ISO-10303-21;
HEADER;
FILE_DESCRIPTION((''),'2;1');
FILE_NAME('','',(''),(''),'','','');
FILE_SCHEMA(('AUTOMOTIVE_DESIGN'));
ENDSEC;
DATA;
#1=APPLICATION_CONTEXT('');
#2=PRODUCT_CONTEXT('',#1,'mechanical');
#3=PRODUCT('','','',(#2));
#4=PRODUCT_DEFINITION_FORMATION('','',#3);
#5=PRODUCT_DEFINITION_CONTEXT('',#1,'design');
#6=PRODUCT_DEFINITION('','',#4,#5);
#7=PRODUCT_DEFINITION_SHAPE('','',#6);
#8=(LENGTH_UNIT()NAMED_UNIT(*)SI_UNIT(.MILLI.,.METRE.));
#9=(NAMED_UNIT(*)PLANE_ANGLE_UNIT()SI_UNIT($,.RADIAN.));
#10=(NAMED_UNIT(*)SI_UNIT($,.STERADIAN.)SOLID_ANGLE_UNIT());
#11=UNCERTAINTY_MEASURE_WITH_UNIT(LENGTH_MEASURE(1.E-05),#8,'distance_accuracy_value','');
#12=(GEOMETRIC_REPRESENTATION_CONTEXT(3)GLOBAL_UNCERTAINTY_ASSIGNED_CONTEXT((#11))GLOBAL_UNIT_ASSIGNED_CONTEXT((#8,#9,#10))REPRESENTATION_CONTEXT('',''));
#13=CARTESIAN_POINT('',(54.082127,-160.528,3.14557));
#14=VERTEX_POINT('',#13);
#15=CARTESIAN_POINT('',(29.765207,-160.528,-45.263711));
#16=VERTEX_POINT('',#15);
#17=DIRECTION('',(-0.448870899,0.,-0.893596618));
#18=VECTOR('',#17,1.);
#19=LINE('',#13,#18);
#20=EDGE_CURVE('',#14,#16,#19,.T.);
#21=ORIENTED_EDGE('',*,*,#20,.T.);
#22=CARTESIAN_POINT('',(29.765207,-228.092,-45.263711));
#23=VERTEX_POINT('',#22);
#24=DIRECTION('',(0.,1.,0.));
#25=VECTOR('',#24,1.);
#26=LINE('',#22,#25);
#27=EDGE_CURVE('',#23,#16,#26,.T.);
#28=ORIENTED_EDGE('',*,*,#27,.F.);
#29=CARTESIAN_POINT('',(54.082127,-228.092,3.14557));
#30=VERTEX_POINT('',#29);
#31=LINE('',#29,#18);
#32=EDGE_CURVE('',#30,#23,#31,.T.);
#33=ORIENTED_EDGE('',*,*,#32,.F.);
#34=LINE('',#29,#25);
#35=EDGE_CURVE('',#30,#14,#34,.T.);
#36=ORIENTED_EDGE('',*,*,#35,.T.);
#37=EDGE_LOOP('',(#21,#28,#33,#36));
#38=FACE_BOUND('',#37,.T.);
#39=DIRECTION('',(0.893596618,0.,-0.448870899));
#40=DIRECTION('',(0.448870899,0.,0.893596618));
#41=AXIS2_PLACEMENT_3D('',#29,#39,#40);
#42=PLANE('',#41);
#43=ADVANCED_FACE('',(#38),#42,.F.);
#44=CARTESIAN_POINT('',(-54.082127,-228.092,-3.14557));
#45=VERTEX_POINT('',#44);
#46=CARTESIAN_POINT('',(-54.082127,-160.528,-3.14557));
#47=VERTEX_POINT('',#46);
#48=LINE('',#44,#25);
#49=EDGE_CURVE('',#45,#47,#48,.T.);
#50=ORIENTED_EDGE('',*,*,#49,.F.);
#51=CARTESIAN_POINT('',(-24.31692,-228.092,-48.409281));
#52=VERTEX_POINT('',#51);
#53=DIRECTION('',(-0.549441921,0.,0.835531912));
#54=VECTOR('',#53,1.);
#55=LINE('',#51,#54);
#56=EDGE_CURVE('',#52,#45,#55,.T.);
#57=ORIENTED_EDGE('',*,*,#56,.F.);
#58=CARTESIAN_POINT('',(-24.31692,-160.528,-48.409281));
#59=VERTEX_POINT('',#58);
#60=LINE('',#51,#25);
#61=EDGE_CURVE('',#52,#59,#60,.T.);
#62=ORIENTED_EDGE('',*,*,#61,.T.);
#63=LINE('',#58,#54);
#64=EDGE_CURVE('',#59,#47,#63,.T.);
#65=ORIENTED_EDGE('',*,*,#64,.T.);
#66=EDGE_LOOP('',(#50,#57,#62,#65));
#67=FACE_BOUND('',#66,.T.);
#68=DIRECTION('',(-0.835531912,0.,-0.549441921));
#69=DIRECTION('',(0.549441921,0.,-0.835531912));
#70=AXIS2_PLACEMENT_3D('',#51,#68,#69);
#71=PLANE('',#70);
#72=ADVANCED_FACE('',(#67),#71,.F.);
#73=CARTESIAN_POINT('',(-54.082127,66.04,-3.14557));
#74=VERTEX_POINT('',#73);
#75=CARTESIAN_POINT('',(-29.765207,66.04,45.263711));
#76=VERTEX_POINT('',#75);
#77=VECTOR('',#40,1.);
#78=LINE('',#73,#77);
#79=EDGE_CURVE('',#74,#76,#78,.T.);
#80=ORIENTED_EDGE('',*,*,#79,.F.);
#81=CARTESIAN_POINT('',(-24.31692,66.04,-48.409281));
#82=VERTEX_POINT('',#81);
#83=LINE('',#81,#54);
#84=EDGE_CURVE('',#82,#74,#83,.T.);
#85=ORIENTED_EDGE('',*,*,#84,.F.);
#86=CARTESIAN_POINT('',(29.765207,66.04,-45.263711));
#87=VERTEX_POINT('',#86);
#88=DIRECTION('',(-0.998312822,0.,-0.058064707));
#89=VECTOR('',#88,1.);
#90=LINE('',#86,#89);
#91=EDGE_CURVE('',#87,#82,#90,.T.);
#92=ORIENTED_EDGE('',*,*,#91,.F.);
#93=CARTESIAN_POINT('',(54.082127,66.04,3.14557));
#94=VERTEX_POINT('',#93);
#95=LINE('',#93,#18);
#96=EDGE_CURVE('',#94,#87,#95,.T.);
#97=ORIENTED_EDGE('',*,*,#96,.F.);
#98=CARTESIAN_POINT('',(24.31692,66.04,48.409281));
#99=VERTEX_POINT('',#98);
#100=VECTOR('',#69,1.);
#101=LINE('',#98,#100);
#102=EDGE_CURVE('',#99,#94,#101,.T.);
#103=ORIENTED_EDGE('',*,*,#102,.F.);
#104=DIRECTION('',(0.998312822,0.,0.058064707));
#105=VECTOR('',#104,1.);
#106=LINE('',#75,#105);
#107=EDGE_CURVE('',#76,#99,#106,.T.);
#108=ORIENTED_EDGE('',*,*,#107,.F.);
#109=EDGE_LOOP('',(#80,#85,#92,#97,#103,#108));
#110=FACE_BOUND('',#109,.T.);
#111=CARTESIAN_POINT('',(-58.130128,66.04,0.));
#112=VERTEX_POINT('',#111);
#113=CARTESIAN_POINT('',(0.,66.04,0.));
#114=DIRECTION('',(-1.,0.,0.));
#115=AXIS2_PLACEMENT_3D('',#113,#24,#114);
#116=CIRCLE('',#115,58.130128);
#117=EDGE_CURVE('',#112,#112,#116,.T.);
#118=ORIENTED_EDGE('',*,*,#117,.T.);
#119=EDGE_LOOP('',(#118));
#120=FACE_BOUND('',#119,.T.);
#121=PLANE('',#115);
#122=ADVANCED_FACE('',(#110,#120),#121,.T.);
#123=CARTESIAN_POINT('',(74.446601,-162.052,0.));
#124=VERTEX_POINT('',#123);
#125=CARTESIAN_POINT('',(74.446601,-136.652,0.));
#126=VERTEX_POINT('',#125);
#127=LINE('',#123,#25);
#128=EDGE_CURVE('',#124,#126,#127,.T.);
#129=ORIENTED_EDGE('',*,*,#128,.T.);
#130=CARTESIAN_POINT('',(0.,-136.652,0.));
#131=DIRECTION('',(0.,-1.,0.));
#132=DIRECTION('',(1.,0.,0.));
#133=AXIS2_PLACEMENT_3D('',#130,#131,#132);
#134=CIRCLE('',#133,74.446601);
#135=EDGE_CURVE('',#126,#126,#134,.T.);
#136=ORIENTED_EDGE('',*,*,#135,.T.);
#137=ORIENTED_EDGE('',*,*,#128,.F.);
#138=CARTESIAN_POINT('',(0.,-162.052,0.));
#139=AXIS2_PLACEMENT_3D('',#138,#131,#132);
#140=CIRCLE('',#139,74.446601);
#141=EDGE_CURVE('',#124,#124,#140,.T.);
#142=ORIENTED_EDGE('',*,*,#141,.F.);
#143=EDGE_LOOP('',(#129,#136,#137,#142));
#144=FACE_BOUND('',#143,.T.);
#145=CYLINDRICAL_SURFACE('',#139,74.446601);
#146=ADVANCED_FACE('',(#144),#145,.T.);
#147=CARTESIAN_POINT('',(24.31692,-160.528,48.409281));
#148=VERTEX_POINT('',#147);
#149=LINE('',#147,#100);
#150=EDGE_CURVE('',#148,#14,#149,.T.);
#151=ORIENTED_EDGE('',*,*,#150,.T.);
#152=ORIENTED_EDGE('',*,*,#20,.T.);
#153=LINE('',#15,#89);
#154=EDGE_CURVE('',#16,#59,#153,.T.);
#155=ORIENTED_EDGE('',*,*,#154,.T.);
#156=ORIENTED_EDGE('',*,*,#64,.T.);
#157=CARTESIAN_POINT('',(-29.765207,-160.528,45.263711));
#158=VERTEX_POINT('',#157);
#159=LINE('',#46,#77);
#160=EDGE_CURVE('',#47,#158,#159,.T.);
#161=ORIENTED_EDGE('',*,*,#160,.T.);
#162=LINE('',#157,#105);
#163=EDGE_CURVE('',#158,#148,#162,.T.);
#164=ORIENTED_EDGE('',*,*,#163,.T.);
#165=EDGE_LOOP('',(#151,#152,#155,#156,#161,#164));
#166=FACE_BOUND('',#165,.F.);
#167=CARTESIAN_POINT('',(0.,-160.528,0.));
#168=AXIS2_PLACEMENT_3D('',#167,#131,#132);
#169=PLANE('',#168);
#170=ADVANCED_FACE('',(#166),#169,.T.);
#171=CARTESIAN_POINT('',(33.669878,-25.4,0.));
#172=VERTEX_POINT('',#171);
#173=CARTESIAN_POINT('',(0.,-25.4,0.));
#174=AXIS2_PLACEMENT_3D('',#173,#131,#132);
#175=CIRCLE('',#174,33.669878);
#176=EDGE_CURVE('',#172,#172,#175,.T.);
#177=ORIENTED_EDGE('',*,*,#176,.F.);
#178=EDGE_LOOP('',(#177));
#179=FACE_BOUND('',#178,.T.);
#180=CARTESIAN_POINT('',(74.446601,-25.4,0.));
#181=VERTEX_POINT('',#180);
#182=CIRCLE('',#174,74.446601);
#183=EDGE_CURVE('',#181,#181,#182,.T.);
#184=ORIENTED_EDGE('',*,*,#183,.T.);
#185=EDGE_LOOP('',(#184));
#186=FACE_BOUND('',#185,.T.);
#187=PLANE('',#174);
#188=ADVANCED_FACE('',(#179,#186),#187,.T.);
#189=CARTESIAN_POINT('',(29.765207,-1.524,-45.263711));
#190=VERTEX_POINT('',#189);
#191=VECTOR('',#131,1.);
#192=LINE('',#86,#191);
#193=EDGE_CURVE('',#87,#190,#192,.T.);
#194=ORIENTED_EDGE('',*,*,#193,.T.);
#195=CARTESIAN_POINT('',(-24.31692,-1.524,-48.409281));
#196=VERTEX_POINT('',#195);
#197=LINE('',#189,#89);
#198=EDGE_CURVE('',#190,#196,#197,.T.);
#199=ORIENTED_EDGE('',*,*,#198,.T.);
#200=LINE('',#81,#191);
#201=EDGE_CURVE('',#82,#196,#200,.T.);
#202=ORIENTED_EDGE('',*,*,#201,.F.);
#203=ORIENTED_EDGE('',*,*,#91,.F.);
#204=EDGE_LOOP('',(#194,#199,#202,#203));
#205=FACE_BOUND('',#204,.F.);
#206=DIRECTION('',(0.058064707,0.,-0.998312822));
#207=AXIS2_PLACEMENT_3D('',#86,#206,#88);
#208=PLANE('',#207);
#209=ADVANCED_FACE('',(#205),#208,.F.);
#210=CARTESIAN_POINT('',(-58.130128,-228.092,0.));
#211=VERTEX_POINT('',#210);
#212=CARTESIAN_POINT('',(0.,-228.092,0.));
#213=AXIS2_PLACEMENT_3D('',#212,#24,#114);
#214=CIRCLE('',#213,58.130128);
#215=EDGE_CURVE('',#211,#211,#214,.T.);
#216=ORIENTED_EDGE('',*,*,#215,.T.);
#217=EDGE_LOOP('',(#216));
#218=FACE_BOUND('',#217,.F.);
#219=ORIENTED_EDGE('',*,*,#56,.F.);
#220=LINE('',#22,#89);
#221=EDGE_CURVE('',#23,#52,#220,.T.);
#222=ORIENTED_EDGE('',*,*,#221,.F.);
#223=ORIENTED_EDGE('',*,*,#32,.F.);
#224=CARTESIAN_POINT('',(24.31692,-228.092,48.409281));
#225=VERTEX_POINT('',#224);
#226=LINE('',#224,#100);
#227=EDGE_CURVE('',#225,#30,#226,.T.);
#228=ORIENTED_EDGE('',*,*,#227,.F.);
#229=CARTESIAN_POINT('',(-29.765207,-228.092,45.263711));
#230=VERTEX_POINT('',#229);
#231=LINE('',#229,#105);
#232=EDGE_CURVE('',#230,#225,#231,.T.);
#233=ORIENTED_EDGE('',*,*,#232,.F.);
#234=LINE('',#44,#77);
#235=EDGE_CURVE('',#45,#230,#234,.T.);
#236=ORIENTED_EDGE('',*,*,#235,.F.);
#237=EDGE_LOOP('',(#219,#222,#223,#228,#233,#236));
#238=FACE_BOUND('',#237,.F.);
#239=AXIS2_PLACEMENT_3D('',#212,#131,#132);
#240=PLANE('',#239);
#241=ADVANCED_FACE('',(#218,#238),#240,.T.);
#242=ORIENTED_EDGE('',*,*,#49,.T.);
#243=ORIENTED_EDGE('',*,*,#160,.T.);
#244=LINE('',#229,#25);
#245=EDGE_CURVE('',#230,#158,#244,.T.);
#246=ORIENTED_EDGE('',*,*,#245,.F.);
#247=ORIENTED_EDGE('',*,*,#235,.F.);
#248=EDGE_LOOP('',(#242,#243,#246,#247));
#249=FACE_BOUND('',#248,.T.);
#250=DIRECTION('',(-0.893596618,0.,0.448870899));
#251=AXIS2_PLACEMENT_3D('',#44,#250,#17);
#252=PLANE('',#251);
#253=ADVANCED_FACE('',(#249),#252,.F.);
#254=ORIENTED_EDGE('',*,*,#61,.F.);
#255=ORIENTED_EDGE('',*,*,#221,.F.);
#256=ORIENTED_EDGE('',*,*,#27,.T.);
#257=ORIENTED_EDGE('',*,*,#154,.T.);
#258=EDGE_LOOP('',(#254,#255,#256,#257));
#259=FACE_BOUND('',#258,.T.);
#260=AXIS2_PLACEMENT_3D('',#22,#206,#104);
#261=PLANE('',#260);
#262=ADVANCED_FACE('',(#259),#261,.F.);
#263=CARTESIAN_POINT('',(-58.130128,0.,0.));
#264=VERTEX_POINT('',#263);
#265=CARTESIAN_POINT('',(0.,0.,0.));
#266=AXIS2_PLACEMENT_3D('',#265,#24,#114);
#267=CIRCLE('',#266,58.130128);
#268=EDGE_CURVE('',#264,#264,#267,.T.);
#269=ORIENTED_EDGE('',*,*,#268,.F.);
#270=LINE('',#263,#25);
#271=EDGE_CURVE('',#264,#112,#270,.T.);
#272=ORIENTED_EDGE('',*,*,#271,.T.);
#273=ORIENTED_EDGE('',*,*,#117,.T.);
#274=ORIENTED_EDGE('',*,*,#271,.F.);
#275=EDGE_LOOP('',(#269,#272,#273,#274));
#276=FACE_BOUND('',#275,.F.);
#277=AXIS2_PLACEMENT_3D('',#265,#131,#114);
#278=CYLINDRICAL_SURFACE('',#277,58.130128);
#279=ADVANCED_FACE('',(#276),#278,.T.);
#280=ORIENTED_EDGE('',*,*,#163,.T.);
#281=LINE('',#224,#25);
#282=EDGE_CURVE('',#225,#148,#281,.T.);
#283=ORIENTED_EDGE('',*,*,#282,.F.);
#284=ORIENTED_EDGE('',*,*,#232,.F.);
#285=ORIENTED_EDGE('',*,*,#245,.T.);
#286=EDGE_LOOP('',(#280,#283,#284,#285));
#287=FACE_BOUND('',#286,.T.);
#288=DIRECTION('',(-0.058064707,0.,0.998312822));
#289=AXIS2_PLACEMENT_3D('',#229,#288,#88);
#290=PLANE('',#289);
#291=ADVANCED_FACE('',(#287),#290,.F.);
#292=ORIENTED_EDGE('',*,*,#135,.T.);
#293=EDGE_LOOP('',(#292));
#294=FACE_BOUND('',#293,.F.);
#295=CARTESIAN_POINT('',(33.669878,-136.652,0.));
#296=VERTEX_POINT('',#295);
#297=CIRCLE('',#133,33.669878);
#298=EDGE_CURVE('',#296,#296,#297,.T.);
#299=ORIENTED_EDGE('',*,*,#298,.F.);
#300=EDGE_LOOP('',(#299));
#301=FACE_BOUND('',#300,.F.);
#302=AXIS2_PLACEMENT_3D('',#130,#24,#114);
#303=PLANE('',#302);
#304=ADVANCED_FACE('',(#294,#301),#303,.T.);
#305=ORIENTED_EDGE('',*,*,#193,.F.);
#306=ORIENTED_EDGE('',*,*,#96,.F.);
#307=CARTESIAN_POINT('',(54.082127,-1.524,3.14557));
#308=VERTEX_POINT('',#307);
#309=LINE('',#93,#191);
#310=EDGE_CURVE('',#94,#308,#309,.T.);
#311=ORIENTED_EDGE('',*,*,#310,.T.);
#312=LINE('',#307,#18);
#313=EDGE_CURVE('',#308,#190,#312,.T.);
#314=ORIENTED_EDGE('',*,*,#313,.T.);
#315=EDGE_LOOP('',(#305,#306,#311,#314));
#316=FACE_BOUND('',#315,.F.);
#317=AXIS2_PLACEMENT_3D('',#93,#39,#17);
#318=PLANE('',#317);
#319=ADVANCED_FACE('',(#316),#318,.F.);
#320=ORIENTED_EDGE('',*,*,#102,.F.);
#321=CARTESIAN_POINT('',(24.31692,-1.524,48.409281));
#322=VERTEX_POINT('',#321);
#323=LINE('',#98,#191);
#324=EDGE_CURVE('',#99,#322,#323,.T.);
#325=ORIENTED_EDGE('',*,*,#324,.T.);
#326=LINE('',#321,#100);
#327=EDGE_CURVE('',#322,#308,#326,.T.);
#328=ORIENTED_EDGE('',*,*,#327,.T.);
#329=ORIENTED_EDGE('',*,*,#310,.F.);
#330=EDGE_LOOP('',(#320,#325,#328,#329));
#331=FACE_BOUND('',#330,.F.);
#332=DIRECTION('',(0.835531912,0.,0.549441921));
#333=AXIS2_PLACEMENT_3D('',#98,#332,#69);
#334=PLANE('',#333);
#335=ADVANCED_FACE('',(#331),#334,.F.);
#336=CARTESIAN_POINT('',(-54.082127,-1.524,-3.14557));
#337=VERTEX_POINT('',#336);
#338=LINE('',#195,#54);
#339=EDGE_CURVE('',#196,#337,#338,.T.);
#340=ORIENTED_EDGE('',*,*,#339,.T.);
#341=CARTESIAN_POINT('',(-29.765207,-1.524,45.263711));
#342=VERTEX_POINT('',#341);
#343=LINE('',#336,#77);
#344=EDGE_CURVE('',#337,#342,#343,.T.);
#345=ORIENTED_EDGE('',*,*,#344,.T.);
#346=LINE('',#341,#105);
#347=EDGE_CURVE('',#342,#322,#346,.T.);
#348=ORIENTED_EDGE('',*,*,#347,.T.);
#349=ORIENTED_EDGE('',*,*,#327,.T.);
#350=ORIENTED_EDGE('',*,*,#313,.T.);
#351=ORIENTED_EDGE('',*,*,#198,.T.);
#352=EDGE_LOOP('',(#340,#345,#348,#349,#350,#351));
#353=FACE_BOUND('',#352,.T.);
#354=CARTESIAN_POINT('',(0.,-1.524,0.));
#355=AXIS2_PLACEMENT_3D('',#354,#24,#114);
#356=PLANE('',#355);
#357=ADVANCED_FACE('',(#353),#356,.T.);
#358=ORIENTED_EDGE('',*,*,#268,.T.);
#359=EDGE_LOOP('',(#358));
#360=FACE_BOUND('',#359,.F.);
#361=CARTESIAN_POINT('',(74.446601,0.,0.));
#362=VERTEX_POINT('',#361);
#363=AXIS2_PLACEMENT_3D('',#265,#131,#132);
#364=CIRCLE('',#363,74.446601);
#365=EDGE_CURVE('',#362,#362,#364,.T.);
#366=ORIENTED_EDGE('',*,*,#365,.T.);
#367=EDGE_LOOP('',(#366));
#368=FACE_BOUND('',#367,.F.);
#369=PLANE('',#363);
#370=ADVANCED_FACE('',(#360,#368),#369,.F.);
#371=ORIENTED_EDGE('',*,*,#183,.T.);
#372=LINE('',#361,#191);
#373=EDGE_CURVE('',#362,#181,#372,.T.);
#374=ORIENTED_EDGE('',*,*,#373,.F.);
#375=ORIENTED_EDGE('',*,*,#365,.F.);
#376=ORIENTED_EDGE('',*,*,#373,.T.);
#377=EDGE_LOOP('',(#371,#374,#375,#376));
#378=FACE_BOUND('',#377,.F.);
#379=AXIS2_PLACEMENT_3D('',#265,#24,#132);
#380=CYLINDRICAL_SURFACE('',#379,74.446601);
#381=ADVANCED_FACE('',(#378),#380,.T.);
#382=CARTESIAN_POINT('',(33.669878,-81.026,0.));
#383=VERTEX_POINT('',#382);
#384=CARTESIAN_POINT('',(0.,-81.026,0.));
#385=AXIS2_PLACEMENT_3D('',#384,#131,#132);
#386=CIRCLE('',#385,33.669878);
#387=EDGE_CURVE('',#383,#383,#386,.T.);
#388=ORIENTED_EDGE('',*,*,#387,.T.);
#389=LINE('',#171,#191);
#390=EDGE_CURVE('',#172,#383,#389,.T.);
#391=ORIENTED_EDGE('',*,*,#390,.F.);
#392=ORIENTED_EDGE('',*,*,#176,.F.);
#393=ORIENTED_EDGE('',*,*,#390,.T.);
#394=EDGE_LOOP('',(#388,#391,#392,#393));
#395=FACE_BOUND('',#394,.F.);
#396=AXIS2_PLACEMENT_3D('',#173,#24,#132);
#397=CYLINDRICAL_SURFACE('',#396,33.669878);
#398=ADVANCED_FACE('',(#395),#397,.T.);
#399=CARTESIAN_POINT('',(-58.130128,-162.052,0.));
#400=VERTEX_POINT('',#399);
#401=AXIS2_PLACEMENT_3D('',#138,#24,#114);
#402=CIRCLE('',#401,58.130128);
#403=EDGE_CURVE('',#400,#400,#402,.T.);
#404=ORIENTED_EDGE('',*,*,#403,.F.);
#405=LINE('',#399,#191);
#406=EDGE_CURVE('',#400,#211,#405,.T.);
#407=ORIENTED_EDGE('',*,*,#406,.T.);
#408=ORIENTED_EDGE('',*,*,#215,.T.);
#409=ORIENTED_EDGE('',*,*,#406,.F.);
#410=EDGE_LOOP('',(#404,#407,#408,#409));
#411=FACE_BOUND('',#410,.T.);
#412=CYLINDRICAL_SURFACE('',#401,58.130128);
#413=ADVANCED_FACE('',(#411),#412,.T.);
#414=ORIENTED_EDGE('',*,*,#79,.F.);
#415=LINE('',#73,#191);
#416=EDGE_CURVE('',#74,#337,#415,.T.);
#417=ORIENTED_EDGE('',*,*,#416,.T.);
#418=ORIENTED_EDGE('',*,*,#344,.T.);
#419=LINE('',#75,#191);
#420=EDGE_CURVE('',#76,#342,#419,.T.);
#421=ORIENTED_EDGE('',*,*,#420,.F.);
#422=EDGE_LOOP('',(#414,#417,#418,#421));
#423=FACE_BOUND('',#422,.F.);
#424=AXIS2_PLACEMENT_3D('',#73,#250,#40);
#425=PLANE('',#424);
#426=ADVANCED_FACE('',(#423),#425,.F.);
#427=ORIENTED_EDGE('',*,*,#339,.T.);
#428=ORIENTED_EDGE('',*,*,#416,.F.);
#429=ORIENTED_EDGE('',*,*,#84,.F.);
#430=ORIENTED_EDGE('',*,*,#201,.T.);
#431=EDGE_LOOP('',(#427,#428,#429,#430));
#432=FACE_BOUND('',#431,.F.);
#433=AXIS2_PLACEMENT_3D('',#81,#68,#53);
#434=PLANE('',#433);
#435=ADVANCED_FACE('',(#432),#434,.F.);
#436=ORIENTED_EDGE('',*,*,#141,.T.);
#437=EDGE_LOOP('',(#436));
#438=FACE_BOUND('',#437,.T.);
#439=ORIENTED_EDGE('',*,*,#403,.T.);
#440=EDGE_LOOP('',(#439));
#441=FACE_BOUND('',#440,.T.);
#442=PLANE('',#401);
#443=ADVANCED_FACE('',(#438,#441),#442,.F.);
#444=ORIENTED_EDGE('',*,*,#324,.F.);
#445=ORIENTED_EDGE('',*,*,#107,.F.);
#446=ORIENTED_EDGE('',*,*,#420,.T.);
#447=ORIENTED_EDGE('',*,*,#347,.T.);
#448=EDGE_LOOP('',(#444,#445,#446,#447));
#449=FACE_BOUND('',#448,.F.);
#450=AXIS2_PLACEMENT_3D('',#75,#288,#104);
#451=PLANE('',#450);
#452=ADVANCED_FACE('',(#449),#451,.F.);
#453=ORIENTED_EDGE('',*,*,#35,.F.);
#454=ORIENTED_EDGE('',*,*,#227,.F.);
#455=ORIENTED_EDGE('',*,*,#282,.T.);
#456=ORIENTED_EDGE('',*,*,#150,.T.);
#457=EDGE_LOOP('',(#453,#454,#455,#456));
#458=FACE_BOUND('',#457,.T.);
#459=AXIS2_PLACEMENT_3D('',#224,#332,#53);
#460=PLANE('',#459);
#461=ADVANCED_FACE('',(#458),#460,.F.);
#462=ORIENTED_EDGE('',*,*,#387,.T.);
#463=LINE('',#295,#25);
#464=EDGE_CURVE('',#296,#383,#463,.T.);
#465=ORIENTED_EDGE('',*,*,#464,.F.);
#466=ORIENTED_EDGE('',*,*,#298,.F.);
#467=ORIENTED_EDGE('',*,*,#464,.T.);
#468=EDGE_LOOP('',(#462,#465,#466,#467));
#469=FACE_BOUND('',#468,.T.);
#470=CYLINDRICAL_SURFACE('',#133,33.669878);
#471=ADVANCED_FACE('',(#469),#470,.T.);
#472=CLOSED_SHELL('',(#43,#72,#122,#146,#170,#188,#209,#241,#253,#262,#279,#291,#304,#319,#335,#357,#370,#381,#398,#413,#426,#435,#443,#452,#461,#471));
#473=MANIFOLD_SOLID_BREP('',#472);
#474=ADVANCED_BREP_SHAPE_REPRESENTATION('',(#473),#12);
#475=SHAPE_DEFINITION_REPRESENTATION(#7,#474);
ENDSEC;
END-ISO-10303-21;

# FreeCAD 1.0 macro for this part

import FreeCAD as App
import Part
import Sketcher

V = App.Vector
Q = App.Units.Quantity


def add_polygon(sketch, points):
    """Adds a closed chain of lines whose ends are joined by coincident constraints."""
    first, n = sketch.GeometryCount, len(points)
    for a, b in zip(points, points[1:] + points[:1]):
        sketch.addGeometry(Part.LineSegment(App.Vector(*a, 0), App.Vector(*b, 0)), False)
    for i in range(n):
        sketch.addConstraint(Sketcher.Constraint("Coincident", first + i, 2, first + (i + 1) % n, 1))

doc = App.newDocument("Part")
body = doc.addObject("PartDesign::Body", "Body")

# Sketch on XZ plane
sketch1 = body.newObject("Sketcher::SketchObject", "Sketch")
sketch1.AttachmentSupport = (doc.getObject("XZ_Plane"), [""])
sketch1.MapMode = "FlatFace"
sketch1.addGeometry(Part.Circle(V(0, 0, 0), V(0, 0, 1), 74), False)
sketch1.addConstraint([
    Sketcher.Constraint("Coincident", 0, 3, -1, 1),
    Sketcher.Constraint("Diameter", 0, Q("148.893202 mm")),
])
pad1 = body.newObject("PartDesign::Pad", "Pad")
pad1.Profile = sketch1
pad1.Length = Q("1 in")

# Sketch on XZ plane
sketch2 = body.newObject("Sketcher::SketchObject", "Sketch001")
sketch2.AttachmentSupport = (doc.getObject("XZ_Plane"), [""])
sketch2.MapMode = "FlatFace"
sketch2.addGeometry(Part.Circle(V(0, 0, 0), V(0, 0, 1), 58), False)
sketch2.addConstraint([
    Sketcher.Constraint("Coincident", 0, 3, -1, 1),
    Sketcher.Constraint("Diameter", 0, Q("116.260256 mm")),
])
pad2 = body.newObject("PartDesign::Pad", "Pad001")
pad2.Profile = sketch2
pad2.Length = Q("2.6 in")
pad2.Reversed = True

# Sketch on XZ plane
sketch3 = body.newObject("Sketcher::SketchObject", "Sketch002")
sketch3.AttachmentSupport = (doc.getObject("XZ_Plane"), [""])
sketch3.MapMode = "FlatFace"
sketch3.AttachmentOffset = App.Placement(V(0, 0, -2.6 * 25.4), App.Rotation())
add_polygon(sketch3, [(-24, -48), (-54, -3), (-30, 45), (24, 48), (54, 3), (30, -45)])  # lines 0-5
sketch3.addConstraint([
    Sketcher.Constraint("Symmetric", 0, 2, 3, 2, -1, 1),
    Sketcher.Constraint("Symmetric", 1, 2, 4, 2, -1, 1),
    Sketcher.Constraint("Symmetric", 2, 2, 5, 2, -1, 1),
    Sketcher.Constraint("Equal", 0, 1),
    Sketcher.Constraint("Equal", 1, 2),
    Sketcher.Constraint("DistanceY", 0, 2, -1, 1, Q("3.14557 mm")),
    Sketcher.Constraint("DistanceY", -1, 1, 1, 2, Q("45.263711 mm")),
    Sketcher.Constraint("DistanceX", -1, 1, 2, 2, Q("24.31692 mm")),
    Sketcher.Constraint("DistanceY", -1, 1, 2, 2, Q("48.409281 mm")),
])
pocket1 = body.newObject("PartDesign::Pocket", "Pocket")
pocket1.Profile = sketch3
pocket1.Length = Q("2.66 in")
pocket1.Reversed = True

# Sketch on XZ plane
sketch4 = body.newObject("Sketcher::SketchObject", "Sketch003")
sketch4.AttachmentSupport = (doc.getObject("XZ_Plane"), [""])
sketch4.MapMode = "FlatFace"
sketch4.AttachmentOffset = App.Placement(V(0, 0, 1 * 25.4), App.Rotation())
sketch4.addGeometry(Part.Circle(V(0, 0, 0), V(0, 0, 1), 34), False)
sketch4.addConstraint([
    Sketcher.Constraint("Coincident", 0, 3, -1, 1),
    Sketcher.Constraint("Diameter", 0, Q("67.339756 mm")),
])
pad3 = body.newObject("PartDesign::Pad", "Pad002")
pad3.Profile = sketch4
pad3.Length = Q("2.19 in")
body2 = doc.addObject("PartDesign::Body", "Body001")
doc.recompute()

body2.BaseFeature = body
doc.recompute()

mirroring = doc.addObject("Part::Mirroring", "Mirroring")
mirroring.Source = body
mirroring.Base = V(0, -81.026, 0)
mirroring.Normal = V(0, -1, 0)
body3 = doc.addObject("PartDesign::Body", "Body002")
body3.BaseFeature = mirroring
boolean = body2.newObject("PartDesign::Boolean", "Boolean")
boolean.Type = "Fuse"
boolean.addObjects([body3])
doc.recompute()
mirroring.Visibility = False

doc.recompute()
